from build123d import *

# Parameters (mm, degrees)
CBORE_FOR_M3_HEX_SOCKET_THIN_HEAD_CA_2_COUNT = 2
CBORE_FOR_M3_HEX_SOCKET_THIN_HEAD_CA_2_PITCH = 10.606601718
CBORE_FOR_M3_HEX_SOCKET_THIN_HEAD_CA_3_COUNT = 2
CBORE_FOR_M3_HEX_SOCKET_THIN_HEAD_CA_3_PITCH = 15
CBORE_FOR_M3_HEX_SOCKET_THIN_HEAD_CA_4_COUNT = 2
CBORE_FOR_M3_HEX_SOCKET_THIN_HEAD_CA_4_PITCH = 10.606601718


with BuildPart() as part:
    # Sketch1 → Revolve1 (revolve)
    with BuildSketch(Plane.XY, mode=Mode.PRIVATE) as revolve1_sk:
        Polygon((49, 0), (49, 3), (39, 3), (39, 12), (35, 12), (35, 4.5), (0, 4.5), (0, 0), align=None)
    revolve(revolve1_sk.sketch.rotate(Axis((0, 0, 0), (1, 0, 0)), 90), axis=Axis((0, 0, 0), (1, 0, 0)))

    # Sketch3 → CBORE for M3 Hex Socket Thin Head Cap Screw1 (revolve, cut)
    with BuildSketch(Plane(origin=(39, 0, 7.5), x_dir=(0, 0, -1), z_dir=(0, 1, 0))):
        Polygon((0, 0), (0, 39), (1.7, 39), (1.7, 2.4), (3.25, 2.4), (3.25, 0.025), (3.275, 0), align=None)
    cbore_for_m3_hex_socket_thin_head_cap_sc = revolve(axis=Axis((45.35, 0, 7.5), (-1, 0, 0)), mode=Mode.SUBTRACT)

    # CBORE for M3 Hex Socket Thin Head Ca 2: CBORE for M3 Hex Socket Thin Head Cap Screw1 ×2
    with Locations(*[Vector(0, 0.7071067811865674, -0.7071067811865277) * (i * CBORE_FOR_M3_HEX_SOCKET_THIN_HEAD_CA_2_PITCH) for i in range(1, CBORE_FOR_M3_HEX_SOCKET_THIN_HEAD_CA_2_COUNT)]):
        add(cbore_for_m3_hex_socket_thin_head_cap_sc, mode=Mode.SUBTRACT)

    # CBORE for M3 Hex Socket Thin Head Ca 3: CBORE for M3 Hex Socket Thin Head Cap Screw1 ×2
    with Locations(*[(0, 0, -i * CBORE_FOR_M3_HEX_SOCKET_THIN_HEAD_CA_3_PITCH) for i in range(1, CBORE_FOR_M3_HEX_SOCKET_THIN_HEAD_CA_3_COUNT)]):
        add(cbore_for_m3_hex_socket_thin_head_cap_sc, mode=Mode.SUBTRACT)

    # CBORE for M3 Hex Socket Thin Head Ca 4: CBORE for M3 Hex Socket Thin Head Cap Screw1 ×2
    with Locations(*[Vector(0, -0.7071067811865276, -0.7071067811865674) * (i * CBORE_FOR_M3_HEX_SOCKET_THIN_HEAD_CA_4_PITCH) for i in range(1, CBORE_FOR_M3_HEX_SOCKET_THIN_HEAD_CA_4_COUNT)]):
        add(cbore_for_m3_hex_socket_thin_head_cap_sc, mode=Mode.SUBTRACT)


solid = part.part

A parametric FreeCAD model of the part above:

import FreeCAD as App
import Part
import Sketcher
Q = App.Units.Quantity

doc = App.newDocument("Part")
body = doc.addObject("PartDesign::Body", "Body")

# Sketch on XY plane
sketch1 = body.newObject("Sketcher::SketchObject", "Sketch")
sketch1.AttachmentSupport = (doc.getObject("XY_Plane"), [""])
sketch1.MapMode = "FlatFace"
sketch1.addGeometry([
    Part.LineSegment(App.Vector(49, 0, 0), App.Vector(49, 3, 0)),  # 0
    Part.LineSegment(App.Vector(49, 3, 0), App.Vector(39, 3, 0)),  # 1
    Part.LineSegment(App.Vector(39, 3, 0), App.Vector(39, 12, 0)),  # 2
    Part.LineSegment(App.Vector(39, 12, 0), App.Vector(35, 12, 0)),  # 3
    Part.LineSegment(App.Vector(35, 12, 0), App.Vector(35, 4.5, 0)),  # 4
    Part.LineSegment(App.Vector(35, 4.5, 0), App.Vector(0, 4.5, 0)),  # 5
    Part.LineSegment(App.Vector(0, 4.5, 0), App.Vector(0, 0, 0)),  # 6
    Part.LineSegment(App.Vector(0, 0, 0), App.Vector(49, 0, 0)),  # 7
], False)
sketch1.addConstraint([
    Sketcher.Constraint("Coincident", 0, 2, 1, 1),
    Sketcher.Constraint("Coincident", 1, 2, 2, 1),
    Sketcher.Constraint("Coincident", 2, 2, 3, 1),
    Sketcher.Constraint("Coincident", 3, 2, 4, 1),
    Sketcher.Constraint("Coincident", 4, 2, 5, 1),
    Sketcher.Constraint("Coincident", 5, 2, 6, 1),
    Sketcher.Constraint("Coincident", 6, 2, 7, 1),
    Sketcher.Constraint("Coincident", 7, 2, 0, 1),
    Sketcher.Constraint("Vertical", 0),
    Sketcher.Constraint("Horizontal", 1),
    Sketcher.Constraint("Vertical", 2),
    Sketcher.Constraint("Horizontal", 3),
    Sketcher.Constraint("Vertical", 4),
    Sketcher.Constraint("Horizontal", 5),
    Sketcher.Constraint("Vertical", 6),
    Sketcher.Constraint("Horizontal", 7),
    Sketcher.Constraint("Coincident", 6, 2, -1, 1),
    Sketcher.Constraint("DistanceX", 1, 2, 1, 1, 10.0),
    Sketcher.Constraint("DistanceX", 3, 2, 3, 1, 4.0),
    Sketcher.Constraint("DistanceX", 5, 2, 5, 1, 35.0),
    Sketcher.Constraint("DistanceY", 0, 1, 0, 2, 3.0),
    Sketcher.Constraint("DistanceY", 2, 1, 2, 2, 9.0),
    Sketcher.Constraint("DistanceY", 4, 2, 4, 1, 7.5),
])
revolution = body.newObject("PartDesign::Revolution", "Revolution")
revolution.Profile = sketch1
revolution.ReferenceAxis = (sketch1, ["H_Axis"])
revolution.Angle = 360

# Sketch on XZ plane
sketch2 = body.newObject("Sketcher::SketchObject", "Sketch001")
sketch2.AttachmentSupport = (doc.getObject("XZ_Plane"), [""])
sketch2.MapMode = "FlatFace"
sketch2.addGeometry([
    Part.LineSegment(App.Vector(0, 7.5, 0), App.Vector(39, 7.5, 0)),  # 0
    Part.LineSegment(App.Vector(39, 7.5, 0), App.Vector(39, 4.225, 0)),  # 1
    Part.LineSegment(App.Vector(39, 4.225, 0), App.Vector(38.975, 4.25, 0)),  # 2
    Part.LineSegment(App.Vector(38.975, 4.25, 0), App.Vector(36.6, 4.25, 0)),  # 3
    Part.LineSegment(App.Vector(36.6, 4.25, 0), App.Vector(36.6, 5.8, 0)),  # 4
    Part.LineSegment(App.Vector(36.6, 5.8, 0), App.Vector(0, 5.8, 0)),  # 5
    Part.LineSegment(App.Vector(0, 5.8, 0), App.Vector(0, 7.5, 0)),  # 6
], False)
sketch2.addGeometry(Part.LineSegment(App.Vector(39, 7.5, 0), App.Vector(0, 7.5, 0)), True)  # axis
sketch2.addConstraint([
    Sketcher.Constraint("Coincident", 0, 2, 1, 1),
    Sketcher.Constraint("Coincident", 1, 2, 2, 1),
    Sketcher.Constraint("Coincident", 2, 2, 3, 1),
    Sketcher.Constraint("Coincident", 3, 2, 4, 1),
    Sketcher.Constraint("Coincident", 4, 2, 5, 1),
    Sketcher.Constraint("Coincident", 5, 2, 6, 1),
    Sketcher.Constraint("Coincident", 6, 2, 0, 1),
    Sketcher.Constraint("Horizontal", 0),
    Sketcher.Constraint("Vertical", 1),
    Sketcher.Constraint("Horizontal", 3),
    Sketcher.Constraint("Vertical", 4),
    Sketcher.Constraint("Horizontal", 5),
    Sketcher.Constraint("Vertical", 6),
    Sketcher.Constraint("Horizontal", 7),
    Sketcher.Constraint("Coincident", 7, 1, 0, 2),
    Sketcher.Constraint("PointOnObject", 5, 2, -2),
    Sketcher.Constraint("PointOnObject", 7, 2, -2),
    Sketcher.Constraint("DistanceX", 0, 1, 0, 2, 39.0),
    Sketcher.Constraint("Angle", 2, Q("135 deg")),
    Sketcher.Constraint("DistanceX", 5, 2, 5, 1, 36.6),
    Sketcher.Constraint("DistanceY", 6, 1, 6, 2, 1.7),
    Sketcher.Constraint("DistanceY", 4, 1, 4, 2, 1.55),
    Sketcher.Constraint("DistanceY", -1, 1, 0, 2, 7.5),
    Sketcher.Constraint("DistanceX", 3, 2, 3, 1, 2.375),
])
groove = body.newObject("PartDesign::Groove", "Groove")
groove.Profile = sketch2
groove.ReferenceAxis = (sketch2, ["Axis0"])
groove.Angle = 360
doc.recompute()

datumline = body.newObject("PartDesign::Line", "DatumLine")
datumline.Placement = App.Placement(App.Vector(0, 0, 0), App.Rotation(App.Vector(0, 0, 1), App.Vector(0, 0.707106781, -0.707106781)))
linearpattern = body.newObject("PartDesign::LinearPattern", "LinearPattern")
linearpattern.Originals = [groove]
linearpattern.Direction = (datumline, [""])
linearpattern.Mode = "offset"
linearpattern.Offset = 10.606602
linearpattern.Occurrences = 2
body.Tip = linearpattern
doc.recompute()

linearpattern2 = body.newObject("PartDesign::LinearPattern", "LinearPattern001")
linearpattern2.Originals = [groove]
linearpattern2.Direction = (doc.getObject("Z_Axis"), [""])
linearpattern2.Mode = "offset"
linearpattern2.Offset = 15
linearpattern2.Occurrences = 2
linearpattern2.Reversed = True
body.Tip = linearpattern2
doc.recompute()

datumline2 = body.newObject("PartDesign::Line", "DatumLine001")
datumline2.Placement = App.Placement(App.Vector(0, 0, 0), App.Rotation(App.Vector(0, 0, 1), App.Vector(0, -0.707106781, -0.707106781)))
linearpattern3 = body.newObject("PartDesign::LinearPattern", "LinearPattern002")
linearpattern3.Originals = [groove]
linearpattern3.Direction = (datumline2, [""])
linearpattern3.Mode = "offset"
linearpattern3.Offset = 10.606602
linearpattern3.Occurrences = 2
body.Tip = linearpattern3

doc.recompute()
